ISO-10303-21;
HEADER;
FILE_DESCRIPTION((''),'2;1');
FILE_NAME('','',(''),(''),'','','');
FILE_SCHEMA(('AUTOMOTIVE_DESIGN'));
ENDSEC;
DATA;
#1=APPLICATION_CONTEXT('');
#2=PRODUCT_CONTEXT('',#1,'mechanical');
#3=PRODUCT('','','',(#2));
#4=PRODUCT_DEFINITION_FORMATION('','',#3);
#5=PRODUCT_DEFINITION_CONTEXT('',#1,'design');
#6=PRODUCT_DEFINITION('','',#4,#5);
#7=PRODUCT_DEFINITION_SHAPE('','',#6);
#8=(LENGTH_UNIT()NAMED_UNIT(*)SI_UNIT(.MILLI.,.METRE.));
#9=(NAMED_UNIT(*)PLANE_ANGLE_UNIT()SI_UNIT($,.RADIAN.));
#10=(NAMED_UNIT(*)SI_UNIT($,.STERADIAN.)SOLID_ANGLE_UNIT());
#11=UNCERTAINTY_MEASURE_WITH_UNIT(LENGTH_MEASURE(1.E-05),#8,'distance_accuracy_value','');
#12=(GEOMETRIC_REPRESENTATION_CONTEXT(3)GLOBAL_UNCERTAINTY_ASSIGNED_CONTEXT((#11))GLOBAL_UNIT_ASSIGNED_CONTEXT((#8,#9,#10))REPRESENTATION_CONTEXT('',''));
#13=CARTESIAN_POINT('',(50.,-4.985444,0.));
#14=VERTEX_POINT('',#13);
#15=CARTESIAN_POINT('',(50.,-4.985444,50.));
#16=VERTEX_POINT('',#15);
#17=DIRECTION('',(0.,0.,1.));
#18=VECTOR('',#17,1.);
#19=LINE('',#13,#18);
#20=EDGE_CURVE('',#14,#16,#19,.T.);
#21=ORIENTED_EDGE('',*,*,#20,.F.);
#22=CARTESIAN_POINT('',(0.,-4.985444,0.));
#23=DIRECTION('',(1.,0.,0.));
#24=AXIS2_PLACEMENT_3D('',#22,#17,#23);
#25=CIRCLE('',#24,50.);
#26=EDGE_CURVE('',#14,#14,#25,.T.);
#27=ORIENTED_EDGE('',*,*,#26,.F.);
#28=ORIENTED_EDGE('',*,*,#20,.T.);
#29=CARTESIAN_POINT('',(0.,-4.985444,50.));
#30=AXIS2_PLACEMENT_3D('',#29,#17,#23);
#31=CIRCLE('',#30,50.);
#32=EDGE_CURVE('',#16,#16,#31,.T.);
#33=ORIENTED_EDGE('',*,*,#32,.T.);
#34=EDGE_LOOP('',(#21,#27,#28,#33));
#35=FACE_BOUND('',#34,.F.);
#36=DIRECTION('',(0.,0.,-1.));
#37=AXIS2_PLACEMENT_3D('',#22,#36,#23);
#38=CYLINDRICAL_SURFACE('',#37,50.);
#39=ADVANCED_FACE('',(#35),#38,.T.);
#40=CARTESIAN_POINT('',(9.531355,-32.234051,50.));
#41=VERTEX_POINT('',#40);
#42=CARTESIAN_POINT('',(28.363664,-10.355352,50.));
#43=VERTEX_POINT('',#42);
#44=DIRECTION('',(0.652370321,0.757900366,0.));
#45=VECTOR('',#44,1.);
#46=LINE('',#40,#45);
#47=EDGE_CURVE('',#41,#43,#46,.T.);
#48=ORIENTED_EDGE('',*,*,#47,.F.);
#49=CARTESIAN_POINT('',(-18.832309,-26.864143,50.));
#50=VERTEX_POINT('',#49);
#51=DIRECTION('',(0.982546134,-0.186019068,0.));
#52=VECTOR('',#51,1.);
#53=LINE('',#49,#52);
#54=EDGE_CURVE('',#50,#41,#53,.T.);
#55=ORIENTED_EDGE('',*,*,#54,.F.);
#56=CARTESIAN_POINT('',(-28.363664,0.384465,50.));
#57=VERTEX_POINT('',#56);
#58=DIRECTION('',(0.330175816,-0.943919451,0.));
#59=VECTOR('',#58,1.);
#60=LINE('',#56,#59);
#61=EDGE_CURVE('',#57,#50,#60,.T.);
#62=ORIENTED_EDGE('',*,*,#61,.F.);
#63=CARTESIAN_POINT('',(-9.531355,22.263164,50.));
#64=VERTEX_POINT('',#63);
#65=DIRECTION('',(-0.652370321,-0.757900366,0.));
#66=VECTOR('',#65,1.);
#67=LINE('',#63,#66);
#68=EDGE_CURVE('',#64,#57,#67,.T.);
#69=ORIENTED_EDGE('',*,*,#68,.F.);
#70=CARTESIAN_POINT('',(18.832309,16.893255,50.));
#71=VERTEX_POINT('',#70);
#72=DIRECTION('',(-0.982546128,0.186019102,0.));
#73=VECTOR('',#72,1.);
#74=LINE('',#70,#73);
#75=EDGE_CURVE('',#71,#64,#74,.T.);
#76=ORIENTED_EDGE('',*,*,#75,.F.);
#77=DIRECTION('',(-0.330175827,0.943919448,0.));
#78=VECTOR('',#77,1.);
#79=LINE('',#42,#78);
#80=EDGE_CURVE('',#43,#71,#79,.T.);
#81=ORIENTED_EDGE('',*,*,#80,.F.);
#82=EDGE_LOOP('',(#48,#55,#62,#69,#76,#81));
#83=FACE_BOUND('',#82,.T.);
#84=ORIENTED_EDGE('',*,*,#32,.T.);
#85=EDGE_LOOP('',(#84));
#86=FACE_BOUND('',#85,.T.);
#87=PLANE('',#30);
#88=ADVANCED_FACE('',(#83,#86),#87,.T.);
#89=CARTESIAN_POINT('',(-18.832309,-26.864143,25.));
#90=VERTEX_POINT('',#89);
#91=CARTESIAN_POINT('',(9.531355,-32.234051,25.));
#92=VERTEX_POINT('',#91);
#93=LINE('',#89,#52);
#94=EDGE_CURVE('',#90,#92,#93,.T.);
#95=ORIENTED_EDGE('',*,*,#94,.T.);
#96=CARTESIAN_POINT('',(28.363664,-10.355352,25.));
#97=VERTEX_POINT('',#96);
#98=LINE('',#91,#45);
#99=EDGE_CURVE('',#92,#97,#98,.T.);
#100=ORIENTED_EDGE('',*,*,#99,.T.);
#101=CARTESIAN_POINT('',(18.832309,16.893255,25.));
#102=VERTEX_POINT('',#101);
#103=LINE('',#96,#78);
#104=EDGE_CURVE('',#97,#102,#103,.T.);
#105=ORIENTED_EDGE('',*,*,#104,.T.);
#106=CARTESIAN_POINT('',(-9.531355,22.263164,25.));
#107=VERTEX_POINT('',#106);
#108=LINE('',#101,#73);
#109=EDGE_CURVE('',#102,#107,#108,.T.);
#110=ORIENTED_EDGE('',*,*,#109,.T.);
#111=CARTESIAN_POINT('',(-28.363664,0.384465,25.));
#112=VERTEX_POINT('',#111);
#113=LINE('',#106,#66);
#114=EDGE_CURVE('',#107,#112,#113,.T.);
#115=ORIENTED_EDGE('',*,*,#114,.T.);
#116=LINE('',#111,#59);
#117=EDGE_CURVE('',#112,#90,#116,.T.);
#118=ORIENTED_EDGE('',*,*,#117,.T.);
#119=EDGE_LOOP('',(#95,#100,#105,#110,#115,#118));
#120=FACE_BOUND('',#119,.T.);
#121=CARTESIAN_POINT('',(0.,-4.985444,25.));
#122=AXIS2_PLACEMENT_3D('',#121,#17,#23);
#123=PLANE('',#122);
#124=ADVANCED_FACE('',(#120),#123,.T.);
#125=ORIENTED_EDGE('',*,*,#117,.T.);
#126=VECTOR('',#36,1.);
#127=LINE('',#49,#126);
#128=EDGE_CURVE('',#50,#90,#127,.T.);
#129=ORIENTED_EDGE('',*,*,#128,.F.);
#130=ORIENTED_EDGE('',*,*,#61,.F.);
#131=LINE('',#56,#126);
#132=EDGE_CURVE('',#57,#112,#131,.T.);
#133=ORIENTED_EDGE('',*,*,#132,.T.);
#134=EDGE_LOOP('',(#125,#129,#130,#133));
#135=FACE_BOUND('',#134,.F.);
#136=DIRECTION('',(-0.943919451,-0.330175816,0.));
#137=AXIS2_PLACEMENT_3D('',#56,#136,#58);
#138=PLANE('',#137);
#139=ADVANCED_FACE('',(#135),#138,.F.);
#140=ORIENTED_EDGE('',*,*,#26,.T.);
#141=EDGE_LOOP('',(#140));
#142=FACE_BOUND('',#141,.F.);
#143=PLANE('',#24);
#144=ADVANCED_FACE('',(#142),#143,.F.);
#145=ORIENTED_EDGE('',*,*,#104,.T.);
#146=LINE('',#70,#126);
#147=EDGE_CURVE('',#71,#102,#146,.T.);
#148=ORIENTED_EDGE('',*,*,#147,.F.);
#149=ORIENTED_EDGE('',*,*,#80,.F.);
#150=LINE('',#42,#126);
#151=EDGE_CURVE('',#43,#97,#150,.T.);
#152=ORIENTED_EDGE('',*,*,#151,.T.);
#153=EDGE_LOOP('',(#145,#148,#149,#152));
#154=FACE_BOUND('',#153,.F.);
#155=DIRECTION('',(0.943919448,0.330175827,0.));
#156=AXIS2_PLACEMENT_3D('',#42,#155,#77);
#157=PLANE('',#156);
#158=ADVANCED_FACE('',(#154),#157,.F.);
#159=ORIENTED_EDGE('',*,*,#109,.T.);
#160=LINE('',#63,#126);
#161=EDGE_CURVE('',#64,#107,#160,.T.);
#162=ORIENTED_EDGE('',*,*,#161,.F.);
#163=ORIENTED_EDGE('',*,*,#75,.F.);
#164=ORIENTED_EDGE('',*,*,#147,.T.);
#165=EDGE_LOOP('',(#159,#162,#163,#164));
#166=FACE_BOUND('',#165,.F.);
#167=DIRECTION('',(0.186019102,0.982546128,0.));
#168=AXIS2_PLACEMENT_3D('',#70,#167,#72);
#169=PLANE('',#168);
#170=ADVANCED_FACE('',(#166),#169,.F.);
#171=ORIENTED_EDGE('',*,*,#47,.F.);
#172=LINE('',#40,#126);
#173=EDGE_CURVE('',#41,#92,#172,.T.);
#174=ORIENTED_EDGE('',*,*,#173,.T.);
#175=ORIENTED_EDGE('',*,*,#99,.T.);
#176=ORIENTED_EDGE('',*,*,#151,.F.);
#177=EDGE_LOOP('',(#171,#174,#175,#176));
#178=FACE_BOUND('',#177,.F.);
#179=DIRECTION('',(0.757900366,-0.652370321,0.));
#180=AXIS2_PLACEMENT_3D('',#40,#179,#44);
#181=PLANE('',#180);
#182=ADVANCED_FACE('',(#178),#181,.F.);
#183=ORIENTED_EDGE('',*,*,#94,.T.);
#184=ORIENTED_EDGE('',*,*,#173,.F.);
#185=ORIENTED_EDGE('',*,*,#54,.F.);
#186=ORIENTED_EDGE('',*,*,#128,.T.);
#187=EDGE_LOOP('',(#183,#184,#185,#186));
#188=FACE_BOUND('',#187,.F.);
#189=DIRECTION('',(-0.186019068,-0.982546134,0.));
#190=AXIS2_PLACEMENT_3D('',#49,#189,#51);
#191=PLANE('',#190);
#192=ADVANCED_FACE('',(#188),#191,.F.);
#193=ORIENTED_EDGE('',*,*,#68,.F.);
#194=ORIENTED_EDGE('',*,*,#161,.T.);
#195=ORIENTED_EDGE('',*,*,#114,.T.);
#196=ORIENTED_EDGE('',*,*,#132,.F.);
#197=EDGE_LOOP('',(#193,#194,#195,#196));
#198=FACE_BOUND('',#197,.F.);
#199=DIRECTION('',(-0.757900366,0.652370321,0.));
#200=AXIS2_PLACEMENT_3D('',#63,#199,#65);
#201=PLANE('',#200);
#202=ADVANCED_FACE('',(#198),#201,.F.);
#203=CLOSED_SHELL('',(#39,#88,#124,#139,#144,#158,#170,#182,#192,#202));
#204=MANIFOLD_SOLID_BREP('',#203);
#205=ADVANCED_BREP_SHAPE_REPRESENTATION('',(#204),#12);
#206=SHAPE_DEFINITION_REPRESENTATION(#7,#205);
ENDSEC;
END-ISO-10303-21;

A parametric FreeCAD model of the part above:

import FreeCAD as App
import Part
import Sketcher
from FreeCAD import Vector
Q = App.Units.Quantity


def add_polygon(sketch, points):
    """Adds a closed chain of lines whose ends are joined by coincident constraints."""
    first, n = sketch.GeometryCount, len(points)
    for a, b in zip(points, points[1:] + points[:1]):
        sketch.addGeometry(Part.LineSegment(App.Vector(*a, 0), App.Vector(*b, 0)), False)
    for i in range(n):
        sketch.addConstraint(Sketcher.Constraint("Coincident", first + i, 2, first + (i + 1) % n, 1))

doc = App.newDocument("Part")
body = doc.addObject("PartDesign::Body", "Body")

# Sketch on XY plane
sketch1 = body.newObject("Sketcher::SketchObject", "Sketch")
sketch1.AttachmentSupport = (doc.getObject("XY_Plane"), [""])
sketch1.MapMode = "FlatFace"
sketch1.addGeometry(Part.Circle(Vector(0, -5, 0), Vector(0, 0, 1), 50), False)
sketch1.addConstraint([
    Sketcher.Constraint("PointOnObject", 0, 3, -2),
    Sketcher.Constraint("Diameter", 0, Q("100 mm")),
    Sketcher.Constraint("DistanceY", 0, 3, -1, 1, Q("4.985444 mm")),
])
pad1 = body.newObject("PartDesign::Pad", "Pad")
pad1.Profile = sketch1
pad1.Length = 50

# Sketch on XY plane
sketch2 = body.newObject("Sketcher::SketchObject", "Sketch001")
sketch2.AttachmentSupport = (doc.getObject("XY_Plane"), [""])
sketch2.MapMode = "FlatFace"
sketch2.AttachmentOffset = App.Placement(Vector(0, 0, 50), App.Rotation())
add_polygon(sketch2, [(-10, 22), (-28, 0), (-19, -27), (10, -32), (28, -10), (19, 17)])  # lines 0-5
sketch2.addConstraint([
    Sketcher.Constraint("Parallel", 0, 3),
    Sketcher.Constraint("Parallel", 1, 4),
    Sketcher.Constraint("Parallel", 2, 5),
    Sketcher.Constraint("Equal", 0, 1),
    Sketcher.Constraint("Equal", 1, 2),
    Sketcher.Constraint("Equal", 2, 3),
    Sketcher.Constraint("DistanceY", 2, 2, 3, 2, Q("21.878699 mm")),
    Sketcher.Constraint("DistanceX", 1, 2, -1, 1, Q("18.832309 mm")),
    Sketcher.Constraint("DistanceY", 2, 2, -1, 1, Q("32.234051 mm")),
    Sketcher.Constraint("DistanceX", -1, 1, 4, 2, Q("18.832309 mm")),
    Sketcher.Constraint("DistanceY", 2, 2, 1, 2, Q("5.369908 mm")),
    Sketcher.Constraint("DistanceX", 0, 2, 2, 2, Q("37.895019 mm")),
])
pocket1 = body.newObject("PartDesign::Pocket", "Pocket")
pocket1.Profile = sketch2
pocket1.Length = 25

doc.recompute()
